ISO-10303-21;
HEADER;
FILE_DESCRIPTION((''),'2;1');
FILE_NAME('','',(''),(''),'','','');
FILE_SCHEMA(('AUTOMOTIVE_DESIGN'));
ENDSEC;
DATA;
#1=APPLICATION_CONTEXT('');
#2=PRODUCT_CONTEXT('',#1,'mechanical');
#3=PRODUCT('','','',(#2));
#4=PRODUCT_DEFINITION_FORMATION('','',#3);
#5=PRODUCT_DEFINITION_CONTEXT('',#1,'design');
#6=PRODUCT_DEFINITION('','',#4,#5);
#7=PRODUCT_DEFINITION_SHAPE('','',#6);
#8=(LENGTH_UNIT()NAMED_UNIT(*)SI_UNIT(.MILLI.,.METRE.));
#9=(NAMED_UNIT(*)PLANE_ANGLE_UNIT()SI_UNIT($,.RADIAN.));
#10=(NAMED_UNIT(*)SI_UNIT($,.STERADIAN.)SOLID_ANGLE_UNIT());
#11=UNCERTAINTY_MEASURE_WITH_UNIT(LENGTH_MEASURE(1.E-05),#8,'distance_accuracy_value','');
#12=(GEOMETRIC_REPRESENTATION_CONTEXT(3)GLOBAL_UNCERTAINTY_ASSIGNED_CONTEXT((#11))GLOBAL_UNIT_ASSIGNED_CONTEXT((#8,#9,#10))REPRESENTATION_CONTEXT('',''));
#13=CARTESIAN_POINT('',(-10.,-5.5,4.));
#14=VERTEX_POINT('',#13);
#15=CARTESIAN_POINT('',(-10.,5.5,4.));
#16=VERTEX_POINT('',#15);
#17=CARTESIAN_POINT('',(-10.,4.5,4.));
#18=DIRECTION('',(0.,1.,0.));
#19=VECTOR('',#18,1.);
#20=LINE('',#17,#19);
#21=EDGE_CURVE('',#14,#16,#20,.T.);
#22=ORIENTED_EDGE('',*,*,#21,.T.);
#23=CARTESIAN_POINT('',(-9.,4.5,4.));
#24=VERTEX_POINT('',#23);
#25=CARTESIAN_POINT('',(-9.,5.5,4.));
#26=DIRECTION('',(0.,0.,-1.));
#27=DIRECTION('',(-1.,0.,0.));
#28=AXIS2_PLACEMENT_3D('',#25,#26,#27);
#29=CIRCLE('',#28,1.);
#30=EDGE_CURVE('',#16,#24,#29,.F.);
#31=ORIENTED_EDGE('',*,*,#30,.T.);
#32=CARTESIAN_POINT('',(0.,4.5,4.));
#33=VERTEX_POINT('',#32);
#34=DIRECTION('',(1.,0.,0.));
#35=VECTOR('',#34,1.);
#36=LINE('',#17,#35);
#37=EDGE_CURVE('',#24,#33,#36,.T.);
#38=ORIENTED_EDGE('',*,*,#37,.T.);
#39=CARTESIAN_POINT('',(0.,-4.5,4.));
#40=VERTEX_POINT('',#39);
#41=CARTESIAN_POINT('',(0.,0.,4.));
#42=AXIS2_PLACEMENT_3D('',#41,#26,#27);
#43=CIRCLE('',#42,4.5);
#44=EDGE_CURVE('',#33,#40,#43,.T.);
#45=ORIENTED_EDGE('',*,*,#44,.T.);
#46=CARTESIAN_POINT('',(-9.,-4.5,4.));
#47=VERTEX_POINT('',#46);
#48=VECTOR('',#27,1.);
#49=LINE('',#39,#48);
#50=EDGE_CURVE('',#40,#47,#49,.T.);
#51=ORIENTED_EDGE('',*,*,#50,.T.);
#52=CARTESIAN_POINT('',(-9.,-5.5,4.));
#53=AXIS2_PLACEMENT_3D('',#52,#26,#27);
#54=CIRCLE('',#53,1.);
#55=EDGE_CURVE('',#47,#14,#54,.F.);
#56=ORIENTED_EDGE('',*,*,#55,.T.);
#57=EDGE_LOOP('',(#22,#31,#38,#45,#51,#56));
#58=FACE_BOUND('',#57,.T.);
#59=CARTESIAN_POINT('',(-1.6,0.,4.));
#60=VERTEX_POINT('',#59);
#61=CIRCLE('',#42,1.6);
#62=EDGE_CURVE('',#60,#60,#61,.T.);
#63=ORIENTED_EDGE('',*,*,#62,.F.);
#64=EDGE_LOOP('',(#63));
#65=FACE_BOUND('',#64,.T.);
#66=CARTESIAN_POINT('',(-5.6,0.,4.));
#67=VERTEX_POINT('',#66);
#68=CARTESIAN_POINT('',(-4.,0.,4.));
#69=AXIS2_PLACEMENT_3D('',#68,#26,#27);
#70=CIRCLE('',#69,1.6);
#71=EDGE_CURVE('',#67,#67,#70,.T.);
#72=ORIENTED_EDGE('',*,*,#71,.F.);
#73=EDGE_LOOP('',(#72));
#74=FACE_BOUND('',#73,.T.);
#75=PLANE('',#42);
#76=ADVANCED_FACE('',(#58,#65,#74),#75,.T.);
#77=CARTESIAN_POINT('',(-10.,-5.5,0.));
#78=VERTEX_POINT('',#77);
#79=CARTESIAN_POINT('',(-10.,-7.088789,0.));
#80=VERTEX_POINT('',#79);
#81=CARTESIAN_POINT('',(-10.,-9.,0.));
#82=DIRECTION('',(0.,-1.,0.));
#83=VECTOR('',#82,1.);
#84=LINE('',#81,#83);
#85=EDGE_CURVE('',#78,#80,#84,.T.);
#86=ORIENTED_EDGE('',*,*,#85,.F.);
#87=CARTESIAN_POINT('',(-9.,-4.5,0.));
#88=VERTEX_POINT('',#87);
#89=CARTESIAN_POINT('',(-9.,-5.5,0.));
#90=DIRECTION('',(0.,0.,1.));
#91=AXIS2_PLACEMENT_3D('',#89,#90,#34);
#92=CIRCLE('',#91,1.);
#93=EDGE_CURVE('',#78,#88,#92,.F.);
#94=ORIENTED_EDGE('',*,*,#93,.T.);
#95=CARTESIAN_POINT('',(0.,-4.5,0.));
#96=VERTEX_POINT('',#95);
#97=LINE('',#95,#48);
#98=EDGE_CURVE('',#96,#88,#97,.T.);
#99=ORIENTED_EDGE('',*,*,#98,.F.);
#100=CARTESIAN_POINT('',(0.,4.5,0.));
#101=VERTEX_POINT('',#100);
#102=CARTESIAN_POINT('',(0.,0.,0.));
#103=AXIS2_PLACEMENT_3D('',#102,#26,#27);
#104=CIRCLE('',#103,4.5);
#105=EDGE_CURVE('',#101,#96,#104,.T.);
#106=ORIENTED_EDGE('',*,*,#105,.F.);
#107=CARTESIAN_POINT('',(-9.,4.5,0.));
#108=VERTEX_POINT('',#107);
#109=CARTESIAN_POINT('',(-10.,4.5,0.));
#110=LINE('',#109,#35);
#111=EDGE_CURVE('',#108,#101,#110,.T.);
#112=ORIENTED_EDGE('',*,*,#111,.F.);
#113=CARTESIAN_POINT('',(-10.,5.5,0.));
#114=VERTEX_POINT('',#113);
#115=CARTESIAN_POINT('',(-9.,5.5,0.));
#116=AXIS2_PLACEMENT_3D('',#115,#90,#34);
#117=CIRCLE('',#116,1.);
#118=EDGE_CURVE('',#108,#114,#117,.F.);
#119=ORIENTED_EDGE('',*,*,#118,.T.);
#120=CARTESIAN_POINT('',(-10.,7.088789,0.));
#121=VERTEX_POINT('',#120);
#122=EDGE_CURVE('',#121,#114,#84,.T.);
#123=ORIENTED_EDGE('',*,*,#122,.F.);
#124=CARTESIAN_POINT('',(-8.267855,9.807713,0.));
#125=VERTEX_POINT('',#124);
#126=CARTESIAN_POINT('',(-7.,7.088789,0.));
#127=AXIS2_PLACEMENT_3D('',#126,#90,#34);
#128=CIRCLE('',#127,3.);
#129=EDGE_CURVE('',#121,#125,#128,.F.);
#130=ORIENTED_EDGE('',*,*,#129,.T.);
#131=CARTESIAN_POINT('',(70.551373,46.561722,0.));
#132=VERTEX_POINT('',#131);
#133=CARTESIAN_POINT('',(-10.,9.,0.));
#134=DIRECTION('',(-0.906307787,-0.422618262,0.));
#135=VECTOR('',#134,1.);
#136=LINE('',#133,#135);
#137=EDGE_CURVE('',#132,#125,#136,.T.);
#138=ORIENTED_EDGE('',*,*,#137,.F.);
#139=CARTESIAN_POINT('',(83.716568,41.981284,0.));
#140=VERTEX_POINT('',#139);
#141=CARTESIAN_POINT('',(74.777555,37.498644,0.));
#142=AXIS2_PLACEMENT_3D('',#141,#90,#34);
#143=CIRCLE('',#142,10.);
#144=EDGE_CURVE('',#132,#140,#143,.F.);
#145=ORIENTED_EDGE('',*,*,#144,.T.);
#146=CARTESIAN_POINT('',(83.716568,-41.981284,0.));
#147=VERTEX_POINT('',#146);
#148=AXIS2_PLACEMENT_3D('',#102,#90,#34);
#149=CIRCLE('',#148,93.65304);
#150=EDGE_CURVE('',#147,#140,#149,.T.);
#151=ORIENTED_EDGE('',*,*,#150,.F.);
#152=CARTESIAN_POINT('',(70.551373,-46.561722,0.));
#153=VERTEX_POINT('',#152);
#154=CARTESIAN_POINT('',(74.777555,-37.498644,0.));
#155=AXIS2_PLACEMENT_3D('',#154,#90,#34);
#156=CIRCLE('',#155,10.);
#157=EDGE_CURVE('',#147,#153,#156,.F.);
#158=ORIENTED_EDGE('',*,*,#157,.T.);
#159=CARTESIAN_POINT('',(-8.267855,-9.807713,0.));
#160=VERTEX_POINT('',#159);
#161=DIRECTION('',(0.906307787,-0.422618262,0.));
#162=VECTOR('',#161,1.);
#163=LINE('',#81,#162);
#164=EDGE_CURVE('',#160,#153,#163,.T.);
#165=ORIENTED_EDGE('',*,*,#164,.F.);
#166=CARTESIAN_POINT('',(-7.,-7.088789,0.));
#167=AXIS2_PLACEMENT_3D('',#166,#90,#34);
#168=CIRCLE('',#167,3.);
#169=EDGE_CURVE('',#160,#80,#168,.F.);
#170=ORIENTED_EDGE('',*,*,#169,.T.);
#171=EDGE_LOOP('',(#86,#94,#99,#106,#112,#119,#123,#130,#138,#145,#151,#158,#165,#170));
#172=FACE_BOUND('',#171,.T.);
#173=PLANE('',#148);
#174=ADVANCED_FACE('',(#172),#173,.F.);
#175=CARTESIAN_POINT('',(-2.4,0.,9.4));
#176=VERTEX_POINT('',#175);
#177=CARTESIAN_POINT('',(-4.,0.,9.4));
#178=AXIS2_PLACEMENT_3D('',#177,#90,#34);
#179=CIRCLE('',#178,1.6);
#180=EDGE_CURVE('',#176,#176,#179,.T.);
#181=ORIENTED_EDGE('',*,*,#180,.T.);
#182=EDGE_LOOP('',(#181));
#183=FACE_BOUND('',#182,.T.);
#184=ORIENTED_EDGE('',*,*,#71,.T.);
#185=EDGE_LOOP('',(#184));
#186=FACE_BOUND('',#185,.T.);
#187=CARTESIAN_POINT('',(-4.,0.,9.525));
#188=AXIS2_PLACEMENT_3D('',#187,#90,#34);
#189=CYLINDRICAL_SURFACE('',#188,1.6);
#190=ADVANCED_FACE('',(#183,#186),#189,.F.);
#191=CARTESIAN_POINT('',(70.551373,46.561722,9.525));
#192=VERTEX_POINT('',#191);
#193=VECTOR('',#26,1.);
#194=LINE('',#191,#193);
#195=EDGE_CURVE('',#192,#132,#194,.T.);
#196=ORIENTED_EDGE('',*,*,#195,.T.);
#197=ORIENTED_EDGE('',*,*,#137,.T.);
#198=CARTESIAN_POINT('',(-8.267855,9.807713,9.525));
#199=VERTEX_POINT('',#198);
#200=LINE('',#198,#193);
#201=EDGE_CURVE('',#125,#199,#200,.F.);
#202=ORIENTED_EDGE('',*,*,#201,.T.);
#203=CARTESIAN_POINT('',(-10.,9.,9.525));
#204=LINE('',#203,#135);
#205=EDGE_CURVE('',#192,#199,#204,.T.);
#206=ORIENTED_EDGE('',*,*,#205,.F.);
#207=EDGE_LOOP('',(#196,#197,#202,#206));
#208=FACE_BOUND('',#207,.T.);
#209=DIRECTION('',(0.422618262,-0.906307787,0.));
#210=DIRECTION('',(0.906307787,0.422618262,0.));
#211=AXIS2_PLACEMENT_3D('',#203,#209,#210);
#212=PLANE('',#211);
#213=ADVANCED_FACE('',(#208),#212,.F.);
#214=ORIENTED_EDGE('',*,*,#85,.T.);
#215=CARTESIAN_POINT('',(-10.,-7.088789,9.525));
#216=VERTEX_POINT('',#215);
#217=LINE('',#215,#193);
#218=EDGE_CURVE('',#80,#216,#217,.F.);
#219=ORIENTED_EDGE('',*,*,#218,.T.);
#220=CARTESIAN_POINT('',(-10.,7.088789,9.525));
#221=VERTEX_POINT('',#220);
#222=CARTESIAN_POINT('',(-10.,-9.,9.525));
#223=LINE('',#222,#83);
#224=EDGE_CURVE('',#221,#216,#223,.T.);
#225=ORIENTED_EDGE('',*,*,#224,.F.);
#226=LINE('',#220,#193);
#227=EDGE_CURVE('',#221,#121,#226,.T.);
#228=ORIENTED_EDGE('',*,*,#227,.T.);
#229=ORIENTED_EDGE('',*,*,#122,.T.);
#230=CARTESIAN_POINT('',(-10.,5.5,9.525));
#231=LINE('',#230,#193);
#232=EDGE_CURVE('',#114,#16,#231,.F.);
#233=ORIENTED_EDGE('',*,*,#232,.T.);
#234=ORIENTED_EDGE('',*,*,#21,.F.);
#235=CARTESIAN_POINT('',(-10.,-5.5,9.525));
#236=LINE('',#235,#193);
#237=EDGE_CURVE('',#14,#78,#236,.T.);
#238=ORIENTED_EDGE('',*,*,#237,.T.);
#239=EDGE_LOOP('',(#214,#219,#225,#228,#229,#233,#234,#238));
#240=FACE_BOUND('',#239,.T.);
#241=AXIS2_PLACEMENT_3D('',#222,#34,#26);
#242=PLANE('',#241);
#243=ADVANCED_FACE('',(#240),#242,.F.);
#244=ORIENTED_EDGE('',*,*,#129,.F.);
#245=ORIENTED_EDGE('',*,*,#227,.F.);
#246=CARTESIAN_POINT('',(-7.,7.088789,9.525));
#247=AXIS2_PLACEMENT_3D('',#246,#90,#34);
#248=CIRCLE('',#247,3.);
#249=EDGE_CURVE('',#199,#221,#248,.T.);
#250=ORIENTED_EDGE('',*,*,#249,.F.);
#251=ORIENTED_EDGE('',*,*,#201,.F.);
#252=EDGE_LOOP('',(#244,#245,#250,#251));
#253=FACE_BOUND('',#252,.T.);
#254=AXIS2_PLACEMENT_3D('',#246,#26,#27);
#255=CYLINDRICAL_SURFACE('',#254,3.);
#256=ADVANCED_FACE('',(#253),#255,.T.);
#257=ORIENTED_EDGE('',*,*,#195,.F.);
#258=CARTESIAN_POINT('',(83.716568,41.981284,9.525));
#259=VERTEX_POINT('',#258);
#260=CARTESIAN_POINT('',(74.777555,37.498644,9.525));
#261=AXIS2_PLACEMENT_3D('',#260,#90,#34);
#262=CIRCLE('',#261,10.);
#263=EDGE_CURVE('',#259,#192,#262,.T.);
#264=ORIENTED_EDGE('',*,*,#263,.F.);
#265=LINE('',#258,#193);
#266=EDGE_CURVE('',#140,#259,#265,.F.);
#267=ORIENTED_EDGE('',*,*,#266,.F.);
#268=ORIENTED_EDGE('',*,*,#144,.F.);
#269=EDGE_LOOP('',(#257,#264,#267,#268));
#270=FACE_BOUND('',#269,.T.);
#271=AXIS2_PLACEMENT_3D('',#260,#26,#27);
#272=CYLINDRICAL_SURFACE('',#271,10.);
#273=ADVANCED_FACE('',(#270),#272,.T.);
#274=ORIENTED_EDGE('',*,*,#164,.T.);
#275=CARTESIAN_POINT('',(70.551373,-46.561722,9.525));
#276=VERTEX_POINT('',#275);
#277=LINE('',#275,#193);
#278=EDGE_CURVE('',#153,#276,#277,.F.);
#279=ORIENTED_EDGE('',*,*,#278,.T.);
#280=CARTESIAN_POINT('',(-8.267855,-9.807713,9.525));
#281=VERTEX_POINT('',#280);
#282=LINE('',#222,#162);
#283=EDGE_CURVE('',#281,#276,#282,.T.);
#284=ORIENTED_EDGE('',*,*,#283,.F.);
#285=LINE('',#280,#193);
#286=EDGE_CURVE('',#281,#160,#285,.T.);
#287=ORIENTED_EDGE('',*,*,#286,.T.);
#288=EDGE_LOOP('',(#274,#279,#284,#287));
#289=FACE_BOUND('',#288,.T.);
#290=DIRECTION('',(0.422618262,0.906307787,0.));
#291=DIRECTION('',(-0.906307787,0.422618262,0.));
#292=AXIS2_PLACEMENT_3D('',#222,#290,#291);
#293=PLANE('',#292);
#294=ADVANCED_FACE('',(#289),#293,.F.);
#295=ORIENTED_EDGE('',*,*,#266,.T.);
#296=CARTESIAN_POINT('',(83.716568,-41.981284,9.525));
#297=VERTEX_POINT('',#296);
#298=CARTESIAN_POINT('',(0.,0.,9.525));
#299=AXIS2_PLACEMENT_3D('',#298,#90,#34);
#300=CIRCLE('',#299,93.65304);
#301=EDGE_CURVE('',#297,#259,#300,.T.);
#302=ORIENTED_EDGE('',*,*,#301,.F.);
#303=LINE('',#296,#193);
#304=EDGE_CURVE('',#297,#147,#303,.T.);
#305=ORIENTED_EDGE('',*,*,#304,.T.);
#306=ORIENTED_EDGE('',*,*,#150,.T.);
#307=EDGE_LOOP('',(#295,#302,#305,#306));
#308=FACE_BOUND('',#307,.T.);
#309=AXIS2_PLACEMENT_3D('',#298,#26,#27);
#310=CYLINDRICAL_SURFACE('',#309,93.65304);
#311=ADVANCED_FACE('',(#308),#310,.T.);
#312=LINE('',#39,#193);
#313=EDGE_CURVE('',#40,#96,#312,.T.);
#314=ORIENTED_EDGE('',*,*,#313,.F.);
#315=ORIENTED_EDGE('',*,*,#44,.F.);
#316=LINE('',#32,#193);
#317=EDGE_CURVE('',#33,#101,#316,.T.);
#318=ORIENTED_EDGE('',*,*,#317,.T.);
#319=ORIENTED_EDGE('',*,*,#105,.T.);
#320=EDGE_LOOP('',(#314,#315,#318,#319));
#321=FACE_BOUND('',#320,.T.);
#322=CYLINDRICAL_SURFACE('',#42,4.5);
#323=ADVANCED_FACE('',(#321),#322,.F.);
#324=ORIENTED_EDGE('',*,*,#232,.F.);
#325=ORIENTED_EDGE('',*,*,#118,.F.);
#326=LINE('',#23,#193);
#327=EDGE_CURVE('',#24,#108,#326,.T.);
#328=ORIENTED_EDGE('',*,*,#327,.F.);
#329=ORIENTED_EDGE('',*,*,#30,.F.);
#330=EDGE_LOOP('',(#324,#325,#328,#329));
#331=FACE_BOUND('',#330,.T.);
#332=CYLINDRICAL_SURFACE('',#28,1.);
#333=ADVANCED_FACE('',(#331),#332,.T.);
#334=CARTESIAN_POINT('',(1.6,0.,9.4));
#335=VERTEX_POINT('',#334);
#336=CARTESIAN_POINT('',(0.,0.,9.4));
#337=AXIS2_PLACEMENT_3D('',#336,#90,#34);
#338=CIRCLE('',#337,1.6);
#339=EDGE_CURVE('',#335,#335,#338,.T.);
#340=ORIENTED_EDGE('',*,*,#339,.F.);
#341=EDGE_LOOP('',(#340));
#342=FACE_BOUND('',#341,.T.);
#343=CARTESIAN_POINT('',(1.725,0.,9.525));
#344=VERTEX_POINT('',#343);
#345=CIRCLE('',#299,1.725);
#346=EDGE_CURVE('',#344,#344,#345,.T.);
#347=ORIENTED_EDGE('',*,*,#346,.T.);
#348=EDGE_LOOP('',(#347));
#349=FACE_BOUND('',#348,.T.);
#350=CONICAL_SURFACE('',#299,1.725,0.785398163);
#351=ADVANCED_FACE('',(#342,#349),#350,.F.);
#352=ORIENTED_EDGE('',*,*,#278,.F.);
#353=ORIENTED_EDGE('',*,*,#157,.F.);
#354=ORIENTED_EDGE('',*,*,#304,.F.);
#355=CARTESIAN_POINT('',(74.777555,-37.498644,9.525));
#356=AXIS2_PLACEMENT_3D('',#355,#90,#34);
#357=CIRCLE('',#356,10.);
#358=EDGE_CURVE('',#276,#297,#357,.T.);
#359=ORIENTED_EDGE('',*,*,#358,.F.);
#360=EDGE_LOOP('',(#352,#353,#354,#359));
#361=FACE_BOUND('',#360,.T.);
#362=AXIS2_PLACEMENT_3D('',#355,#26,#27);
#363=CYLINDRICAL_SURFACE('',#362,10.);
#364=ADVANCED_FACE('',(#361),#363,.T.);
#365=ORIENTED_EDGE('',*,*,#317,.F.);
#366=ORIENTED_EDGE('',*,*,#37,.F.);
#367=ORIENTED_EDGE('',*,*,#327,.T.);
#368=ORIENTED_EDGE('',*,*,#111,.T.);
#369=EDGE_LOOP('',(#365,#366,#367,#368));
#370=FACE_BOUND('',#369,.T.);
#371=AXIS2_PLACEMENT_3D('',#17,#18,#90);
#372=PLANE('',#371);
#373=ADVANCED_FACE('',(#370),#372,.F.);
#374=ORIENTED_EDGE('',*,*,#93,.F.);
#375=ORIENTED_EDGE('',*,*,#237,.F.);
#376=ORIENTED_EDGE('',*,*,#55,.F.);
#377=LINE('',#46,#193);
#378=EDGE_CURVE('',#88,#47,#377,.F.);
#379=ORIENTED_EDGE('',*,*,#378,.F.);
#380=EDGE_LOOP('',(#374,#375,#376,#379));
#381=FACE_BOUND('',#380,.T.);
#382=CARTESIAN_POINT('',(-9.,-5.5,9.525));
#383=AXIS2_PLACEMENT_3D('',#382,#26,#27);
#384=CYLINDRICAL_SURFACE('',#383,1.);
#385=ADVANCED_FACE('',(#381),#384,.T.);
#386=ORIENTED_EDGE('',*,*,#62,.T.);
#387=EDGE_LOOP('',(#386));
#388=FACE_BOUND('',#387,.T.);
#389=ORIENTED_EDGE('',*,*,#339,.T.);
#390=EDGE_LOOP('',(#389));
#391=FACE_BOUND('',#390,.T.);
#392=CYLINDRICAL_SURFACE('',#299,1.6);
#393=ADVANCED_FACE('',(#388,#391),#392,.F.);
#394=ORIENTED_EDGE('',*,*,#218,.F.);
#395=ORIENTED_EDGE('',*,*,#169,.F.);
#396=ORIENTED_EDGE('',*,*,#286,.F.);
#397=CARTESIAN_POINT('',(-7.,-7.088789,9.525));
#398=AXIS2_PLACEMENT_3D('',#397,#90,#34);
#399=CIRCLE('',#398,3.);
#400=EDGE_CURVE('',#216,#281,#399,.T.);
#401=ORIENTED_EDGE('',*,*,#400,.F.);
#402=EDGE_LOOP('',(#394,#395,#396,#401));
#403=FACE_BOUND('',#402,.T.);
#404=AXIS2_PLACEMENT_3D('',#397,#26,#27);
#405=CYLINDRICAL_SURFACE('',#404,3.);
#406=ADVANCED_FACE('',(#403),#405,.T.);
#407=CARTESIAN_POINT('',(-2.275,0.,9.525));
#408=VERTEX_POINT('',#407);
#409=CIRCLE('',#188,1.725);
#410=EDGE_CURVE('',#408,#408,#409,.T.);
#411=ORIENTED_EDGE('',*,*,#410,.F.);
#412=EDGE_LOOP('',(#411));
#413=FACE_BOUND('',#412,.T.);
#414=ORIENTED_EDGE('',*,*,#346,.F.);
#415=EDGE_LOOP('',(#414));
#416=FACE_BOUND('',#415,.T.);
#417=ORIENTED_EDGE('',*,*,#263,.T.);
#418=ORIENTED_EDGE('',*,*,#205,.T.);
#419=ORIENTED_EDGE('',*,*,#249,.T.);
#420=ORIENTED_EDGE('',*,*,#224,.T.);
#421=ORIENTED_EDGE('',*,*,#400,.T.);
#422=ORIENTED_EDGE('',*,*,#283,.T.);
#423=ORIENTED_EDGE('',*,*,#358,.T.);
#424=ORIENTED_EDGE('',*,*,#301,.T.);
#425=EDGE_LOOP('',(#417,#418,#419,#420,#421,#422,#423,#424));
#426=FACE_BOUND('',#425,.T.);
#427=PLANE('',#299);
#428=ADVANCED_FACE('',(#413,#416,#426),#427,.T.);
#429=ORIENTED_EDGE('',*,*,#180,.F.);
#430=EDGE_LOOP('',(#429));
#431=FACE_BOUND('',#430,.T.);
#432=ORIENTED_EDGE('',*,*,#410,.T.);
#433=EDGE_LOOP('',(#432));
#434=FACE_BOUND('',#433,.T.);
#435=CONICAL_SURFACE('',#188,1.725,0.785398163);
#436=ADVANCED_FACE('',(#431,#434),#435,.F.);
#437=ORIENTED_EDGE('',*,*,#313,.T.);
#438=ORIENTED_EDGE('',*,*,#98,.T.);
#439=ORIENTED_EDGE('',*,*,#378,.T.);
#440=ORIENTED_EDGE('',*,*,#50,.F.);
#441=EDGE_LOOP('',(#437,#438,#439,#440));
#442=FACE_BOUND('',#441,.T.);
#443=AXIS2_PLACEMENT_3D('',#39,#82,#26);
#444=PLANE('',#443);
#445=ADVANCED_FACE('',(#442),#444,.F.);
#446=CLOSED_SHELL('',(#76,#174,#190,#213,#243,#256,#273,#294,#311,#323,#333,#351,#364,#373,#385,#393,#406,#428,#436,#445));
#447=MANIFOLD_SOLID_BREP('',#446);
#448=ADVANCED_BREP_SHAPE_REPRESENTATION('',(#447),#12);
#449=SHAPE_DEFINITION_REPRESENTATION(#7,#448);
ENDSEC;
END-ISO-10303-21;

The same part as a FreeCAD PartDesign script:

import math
import FreeCAD as App
import Part
import Sketcher

V = App.Vector
Q = App.Units.Quantity


def edges_at(feature, points):
    """Names of the edges that pass closest to the given points."""
    edges = feature.Shape.Edges
    near = lambda p: min(range(len(edges)), key=lambda i: edges[i].distToShape(Part.Vertex(*p))[0])
    return sorted({f"Edge{near(p) + 1}" for p in points})

doc = App.newDocument("Part")
body = doc.addObject("PartDesign::Body", "Body")

# Sketch on XY plane
sketch1 = doc.addObject("Sketcher::SketchObject", "Sketch")
body.addObject(sketch1)
sketch1.AttachmentSupport = (doc.XY_Plane, [""])
sketch1.MapMode = "FlatFace"
sketch1.addGeometry([
    Part.LineSegment(V(-10, 9, 0), V(-10, -9, 0)),
    Part.LineSegment(V(-10, -9, 0), V(79, -50, 0)),
    Part.ArcOfCircle(Part.Circle(V(0, 0, 0), V(0, 0, 1), 94), math.radians(-33), math.radians(33)),
    Part.LineSegment(V(79, 50, 0), V(-10, 9, 0)),
], False)
sketch1.addConstraint([
    Sketcher.Constraint("Coincident", 0, 2, 1, 1),
    Sketcher.Constraint("Coincident", 1, 2, 2, 1),
    Sketcher.Constraint("Coincident", 2, 2, 3, 1),
    Sketcher.Constraint("Coincident", 3, 2, 0, 1),
    Sketcher.Constraint("Vertical", 0),
    Sketcher.Constraint("Coincident", 2, 3, -1, 1),
    Sketcher.Constraint("Vertical", 1, 2, 2, 2),
    Sketcher.Constraint("Equal", 1, 3),
    Sketcher.Constraint("DistanceY", 0, 2, 0, 1, 18.0),
    Sketcher.Constraint("Angle", 1, Q("-25 deg")),
    Sketcher.Constraint("DistanceX", 0, 2, -1, 1, 10.0),
    Sketcher.Constraint("DistanceX", -1, 1, 1, 2, 78.9),
])
pad1 = doc.addObject("PartDesign::Pad", "Pad")
body.addObject(pad1)
pad1.Profile = sketch1
pad1.Length = 9.525

# Sketch on XY plane
sketch2 = doc.addObject("Sketcher::SketchObject", "Sketch001")
body.addObject(sketch2)
sketch2.AttachmentSupport = (doc.XY_Plane, [""])
sketch2.MapMode = "FlatFace"
sketch2.addGeometry([
    Part.LineSegment(V(-10, -4.5, 0), V(-10, 4.5, 0)),
    Part.LineSegment(V(-10, 4.5, 0), V(0, 4.5, 0)),
    Part.ArcOfCircle(Part.Circle(V(0, 0, 0), V(0, 0, 1), 4.5), math.radians(-90), math.radians(90)),
    Part.LineSegment(V(0, -4.5, 0), V(-10, -4.5, 0)),
], False)
sketch2.addConstraint([
    Sketcher.Constraint("Coincident", 0, 2, 1, 1),
    Sketcher.Constraint("Tangent", 1, 2, 2, 2),
    Sketcher.Constraint("Tangent", 2, 1, 3, 1),
    Sketcher.Constraint("Coincident", 3, 2, 0, 1),
    Sketcher.Constraint("Vertical", 0),
    Sketcher.Constraint("Horizontal", 1),
    Sketcher.Constraint("Horizontal", 3),
    Sketcher.Constraint("Coincident", 2, 3, -1, 1),
    Sketcher.Constraint("Radius", 2, 4.5),
    Sketcher.Constraint("DistanceX", 1, 1, 1, 2, 10.0),
])
pocket1 = doc.addObject("PartDesign::Pocket", "Pocket")
body.addObject(pocket1)
pocket1.Profile = sketch2
pocket1.Length = 4
pocket1.Reversed = True

# Sketch on XY plane
sketch3 = doc.addObject("Sketcher::SketchObject", "Sketch002")
body.addObject(sketch3)
sketch3.AttachmentSupport = (doc.XY_Plane, [""])
sketch3.MapMode = "FlatFace"
sketch3.AttachmentOffset = App.Placement(V(0, 0, 9.525), App.Rotation())
sketch3.addGeometry([
    Part.Circle(V(0, 0, 0), V(0, 0, 1), 1.6),
    Part.Circle(V(-4, 0, 0), V(0, 0, 1), 1.6),
], False)
sketch3.addConstraint([
    Sketcher.Constraint("Coincident", 0, 3, -1, 1),
    Sketcher.Constraint("Equal", 0, 1),
    Sketcher.Constraint("PointOnObject", 1, 3, -1),
    Sketcher.Constraint("Diameter", 0, 3.2),
    Sketcher.Constraint("DistanceX", 1, 3, -1, 1, 4.0),
])
doc.recompute()
hole = doc.addObject("PartDesign::Hole", "Hole")
body.addObject(hole)
hole.Profile = sketch3
hole.ThreadType = "None"
hole.Diameter = 3.2
hole.DepthType = "ThroughAll"
hole.HoleCutType = "Countersink"
hole.HoleCutDiameter = 3.45
hole.HoleCutCountersinkAngle = 90
doc.recompute()

fillet = doc.addObject("PartDesign::Fillet", "Fillet")
body.addObject(fillet)
fillet.Base = (hole, edges_at(hole, [(-10, 4.5, 2), (-10, -4.5, 2)]))
fillet.Radius = 1
doc.recompute()

fillet2 = doc.addObject("PartDesign::Fillet", "Fillet001")
body.addObject(fillet2)
fillet2.Base = (fillet, edges_at(fillet, [(-10, -9, 4.763), (-10, 9, 4.763)]))
fillet2.Radius = 3
doc.recompute()

fillet3 = doc.addObject("PartDesign::Fillet", "Fillet002")
body.addObject(fillet3)
fillet3.Base = (fillet2, edges_at(fillet2, [(78.9, 50.455, 4.763), (78.9, -50.455, 4.763)]))
fillet3.Radius = 10

doc.recompute()
